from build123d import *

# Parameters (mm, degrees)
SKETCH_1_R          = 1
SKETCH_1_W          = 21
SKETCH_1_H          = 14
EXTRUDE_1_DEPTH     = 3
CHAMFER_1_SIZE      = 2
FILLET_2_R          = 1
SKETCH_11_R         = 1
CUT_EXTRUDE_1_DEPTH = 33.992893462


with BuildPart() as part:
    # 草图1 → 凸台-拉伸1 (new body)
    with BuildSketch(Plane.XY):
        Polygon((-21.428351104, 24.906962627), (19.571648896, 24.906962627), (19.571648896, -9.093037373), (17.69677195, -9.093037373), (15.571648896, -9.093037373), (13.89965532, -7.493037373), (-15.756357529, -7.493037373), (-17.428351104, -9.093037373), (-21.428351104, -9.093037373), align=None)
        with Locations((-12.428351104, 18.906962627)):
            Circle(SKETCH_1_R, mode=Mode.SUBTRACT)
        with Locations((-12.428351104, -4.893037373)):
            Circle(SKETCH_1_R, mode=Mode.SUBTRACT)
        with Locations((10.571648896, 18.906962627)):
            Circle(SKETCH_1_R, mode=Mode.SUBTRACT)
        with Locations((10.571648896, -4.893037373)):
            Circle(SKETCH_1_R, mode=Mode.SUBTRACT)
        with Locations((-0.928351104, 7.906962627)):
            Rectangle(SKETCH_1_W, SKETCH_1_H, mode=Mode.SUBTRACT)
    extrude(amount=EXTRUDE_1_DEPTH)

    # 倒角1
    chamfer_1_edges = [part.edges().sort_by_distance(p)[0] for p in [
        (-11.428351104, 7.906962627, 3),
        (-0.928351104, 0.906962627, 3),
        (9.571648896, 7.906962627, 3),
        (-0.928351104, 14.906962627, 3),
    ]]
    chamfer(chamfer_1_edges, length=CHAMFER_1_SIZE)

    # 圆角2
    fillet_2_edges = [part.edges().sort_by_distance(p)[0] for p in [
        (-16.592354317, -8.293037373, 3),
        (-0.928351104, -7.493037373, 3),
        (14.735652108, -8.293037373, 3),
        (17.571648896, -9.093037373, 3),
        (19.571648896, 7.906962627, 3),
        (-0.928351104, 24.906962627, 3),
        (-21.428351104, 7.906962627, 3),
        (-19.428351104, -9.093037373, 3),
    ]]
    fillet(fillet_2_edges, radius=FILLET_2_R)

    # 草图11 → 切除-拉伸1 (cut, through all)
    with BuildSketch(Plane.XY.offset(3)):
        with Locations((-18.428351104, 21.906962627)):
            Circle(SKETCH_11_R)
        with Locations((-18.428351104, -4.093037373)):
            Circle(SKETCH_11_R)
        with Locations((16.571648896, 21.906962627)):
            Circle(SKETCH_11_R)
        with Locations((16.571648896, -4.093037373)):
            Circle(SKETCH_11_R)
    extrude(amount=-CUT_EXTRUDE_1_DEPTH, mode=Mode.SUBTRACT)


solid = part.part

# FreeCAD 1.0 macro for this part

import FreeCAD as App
import Part
import Sketcher

V = App.Vector


def edges_at(feature, points):
    """Names of the edges that pass closest to the given points."""
    edges = feature.Shape.Edges
    near = lambda p: min(range(len(edges)), key=lambda i: edges[i].distToShape(Part.Vertex(*p))[0])
    return sorted({f"Edge{near(p) + 1}" for p in points})

doc = App.newDocument("Part")
body = doc.addObject("PartDesign::Body", "Body")

sketch1 = doc.addObject("Sketcher::SketchObject", "Sketch")
body.addObject(sketch1)
sketch1.AttachmentSupport = (doc.XY_Plane, [""])
sketch1.MapMode = "FlatFace"
sketch1.addGeometry([
    Part.LineSegment(V(19.6, 24.9, 0), V(-21.4, 24.9, 0)),
    Part.LineSegment(V(-21.4, 24.9, 0), V(-21.4, -9.1, 0)),
    Part.LineSegment(V(-21.4, -9.1, 0), V(-17.4, -9.1, 0)),
    Part.LineSegment(V(-17.4, -9.1, 0), V(-15.8, -7.5, 0)),
    Part.LineSegment(V(-15.8, -7.5, 0), V(13.9, -7.5, 0)),
    Part.LineSegment(V(13.9, -7.5, 0), V(15.6, -9.1, 0)),
    Part.LineSegment(V(15.6, -9.1, 0), V(19.6, -9.1, 0)),
    Part.LineSegment(V(19.6, -9.1, 0), V(19.6, 24.9, 0)),
    Part.Circle(V(10.6, -4.9, 0), V(0, 0, 1), 1),
    Part.Circle(V(-12.4, -4.9, 0), V(0, 0, 1), 1),
    Part.Circle(V(10.6, 18.9, 0), V(0, 0, 1), 1),
    Part.LineSegment(V(-11.4, 0.9, 0), V(-11.4, 14.9, 0)),
    Part.LineSegment(V(-11.4, 14.9, 0), V(9.6, 14.9, 0)),
    Part.LineSegment(V(9.6, 14.9, 0), V(9.6, 0.9, 0)),
    Part.LineSegment(V(9.6, 0.9, 0), V(-11.4, 0.9, 0)),
    Part.Circle(V(-12.4, 18.9, 0), V(0, 0, 1), 1),
], False)
sketch1.addConstraint([
    Sketcher.Constraint("Coincident", 0, 2, 1, 1),
    Sketcher.Constraint("Coincident", 1, 2, 2, 1),
    Sketcher.Constraint("Coincident", 2, 2, 3, 1),
    Sketcher.Constraint("Coincident", 3, 2, 4, 1),
    Sketcher.Constraint("Coincident", 4, 2, 5, 1),
    Sketcher.Constraint("Coincident", 5, 2, 6, 1),
    Sketcher.Constraint("Coincident", 6, 2, 7, 1),
    Sketcher.Constraint("Coincident", 7, 2, 0, 1),
    Sketcher.Constraint("Coincident", 11, 2, 12, 1),
    Sketcher.Constraint("Coincident", 12, 2, 13, 1),
    Sketcher.Constraint("Coincident", 13, 2, 14, 1),
    Sketcher.Constraint("Coincident", 14, 2, 11, 1),
    Sketcher.Constraint("Horizontal", 0),
    Sketcher.Constraint("Vertical", 1),
    Sketcher.Constraint("Horizontal", 2),
    Sketcher.Constraint("Horizontal", 4),
    Sketcher.Constraint("Horizontal", 6),
    Sketcher.Constraint("Vertical", 7),
    Sketcher.Constraint("Vertical", 11),
    Sketcher.Constraint("Horizontal", 12),
    Sketcher.Constraint("Vertical", 13),
    Sketcher.Constraint("Horizontal", 14),
    Sketcher.Constraint("Equal", 8, 9),
    Sketcher.Constraint("Equal", 9, 10),
    Sketcher.Constraint("Equal", 10, 15),
    Sketcher.Constraint("Horizontal", 8, 3, 9, 3),
    Sketcher.Constraint("Horizontal", 10, 3, 15, 3),
    Sketcher.Constraint("Horizontal", 2, 2, 5, 2),
    Sketcher.Constraint("Vertical", 8, 3, 10, 3),
    Sketcher.Constraint("Vertical", 9, 3, 15, 3),
    Sketcher.Constraint("Equal", 2, 6),
    Sketcher.Constraint("Equal", 3, 5),
    Sketcher.Constraint("Diameter", 8, 2.0),
    Sketcher.Constraint("DistanceX", 0, 2, 0, 1, 41.0),
    Sketcher.Constraint("DistanceX", 2, 1, 2, 2, 4.0),
    Sketcher.Constraint("DistanceX", 12, 1, 12, 2, 21.0),
    Sketcher.Constraint("DistanceY", 1, 2, 1, 1, 34.0),
    Sketcher.Constraint("DistanceY", 11, 1, 11, 2, 14.0),
    Sketcher.Constraint("DistanceX", 9, 3, 8, 3, 23.0),
    Sketcher.Constraint("DistanceX", 0, 2, 15, 3, 9.0),
    Sketcher.Constraint("DistanceY", 15, 3, 0, 2, 6.0),
    Sketcher.Constraint("DistanceX", 15, 3, 11, 2, 1.0),
    Sketcher.Constraint("DistanceY", 11, 2, 15, 3, 4.0),
    Sketcher.Constraint("DistanceY", 8, 3, 10, 3, 23.8),
    Sketcher.Constraint("DistanceY", 2, 2, 3, 2, 1.6),
    Sketcher.Constraint("Distance", 3, 2.314209),
    Sketcher.Constraint("DistanceX", -1, 1, 8, 3, 10.571649),
    Sketcher.Constraint("DistanceY", 8, 3, -1, 1, 4.893037),
])
pad1 = doc.addObject("PartDesign::Pad", "Pad")
body.addObject(pad1)
pad1.Profile = sketch1
pad1.Length = 3
doc.recompute()

chamfer = doc.addObject("PartDesign::Chamfer", "Chamfer")
body.addObject(chamfer)
chamfer.Base = (pad1, edges_at(pad1, [
    (-11.428, 7.907, 3),
    (-0.928, 0.907, 3),
    (9.572, 7.907, 3),
    (-0.928, 14.907, 3),
]))
chamfer.Size = 2
doc.recompute()

fillet = doc.addObject("PartDesign::Fillet", "Fillet")
body.addObject(fillet)
fillet.Base = (chamfer, edges_at(chamfer, [
    (-16.592, -8.293, 3),
    (-0.928, -7.493, 3),
    (14.736, -8.293, 3),
    (17.572, -9.093, 3),
    (19.572, 7.907, 3),
    (-0.928, 24.907, 3),
    (-21.428, 7.907, 3),
    (-19.428, -9.093, 3),
]))
fillet.Radius = 1

sketch2 = doc.addObject("Sketcher::SketchObject", "Sketch001")
body.addObject(sketch2)
sketch2.AttachmentSupport = (doc.XY_Plane, [""])
sketch2.MapMode = "FlatFace"
sketch2.AttachmentOffset = App.Placement(V(0, 0, 3), App.Rotation())
sketch2.addGeometry([
    Part.Circle(V(-18.4, 21.9, 0), V(0, 0, 1), 1),
    Part.Circle(V(-18.4, -4.1, 0), V(0, 0, 1), 1),
    Part.Circle(V(16.6, 21.9, 0), V(0, 0, 1), 1),
    Part.Circle(V(16.6, -4.1, 0), V(0, 0, 1), 1),
], False)
sketch2.addConstraint([
    Sketcher.Constraint("Equal", 0, 1),
    Sketcher.Constraint("Equal", 1, 2),
    Sketcher.Constraint("Equal", 2, 3),
    Sketcher.Constraint("Horizontal", 0, 3, 2, 3),
    Sketcher.Constraint("Horizontal", 1, 3, 3, 3),
    Sketcher.Constraint("Vertical", 0, 3, 1, 3),
    Sketcher.Constraint("Vertical", 2, 3, 3, 3),
    Sketcher.Constraint("Diameter", 0, 2.0),
    Sketcher.Constraint("DistanceY", 1, 3, 0, 3, 26.0),
    Sketcher.Constraint("DistanceX", 0, 3, 2, 3, 35.0),
    Sketcher.Constraint("DistanceX", 0, 3, -1, 1, 18.428351),
    Sketcher.Constraint("DistanceY", -1, 1, 0, 3, 21.906963),
])
pocket1 = doc.addObject("PartDesign::Pocket", "Pocket")
body.addObject(pocket1)
pocket1.Profile = sketch2
pocket1.Type = "ThroughAll"

doc.recompute()
